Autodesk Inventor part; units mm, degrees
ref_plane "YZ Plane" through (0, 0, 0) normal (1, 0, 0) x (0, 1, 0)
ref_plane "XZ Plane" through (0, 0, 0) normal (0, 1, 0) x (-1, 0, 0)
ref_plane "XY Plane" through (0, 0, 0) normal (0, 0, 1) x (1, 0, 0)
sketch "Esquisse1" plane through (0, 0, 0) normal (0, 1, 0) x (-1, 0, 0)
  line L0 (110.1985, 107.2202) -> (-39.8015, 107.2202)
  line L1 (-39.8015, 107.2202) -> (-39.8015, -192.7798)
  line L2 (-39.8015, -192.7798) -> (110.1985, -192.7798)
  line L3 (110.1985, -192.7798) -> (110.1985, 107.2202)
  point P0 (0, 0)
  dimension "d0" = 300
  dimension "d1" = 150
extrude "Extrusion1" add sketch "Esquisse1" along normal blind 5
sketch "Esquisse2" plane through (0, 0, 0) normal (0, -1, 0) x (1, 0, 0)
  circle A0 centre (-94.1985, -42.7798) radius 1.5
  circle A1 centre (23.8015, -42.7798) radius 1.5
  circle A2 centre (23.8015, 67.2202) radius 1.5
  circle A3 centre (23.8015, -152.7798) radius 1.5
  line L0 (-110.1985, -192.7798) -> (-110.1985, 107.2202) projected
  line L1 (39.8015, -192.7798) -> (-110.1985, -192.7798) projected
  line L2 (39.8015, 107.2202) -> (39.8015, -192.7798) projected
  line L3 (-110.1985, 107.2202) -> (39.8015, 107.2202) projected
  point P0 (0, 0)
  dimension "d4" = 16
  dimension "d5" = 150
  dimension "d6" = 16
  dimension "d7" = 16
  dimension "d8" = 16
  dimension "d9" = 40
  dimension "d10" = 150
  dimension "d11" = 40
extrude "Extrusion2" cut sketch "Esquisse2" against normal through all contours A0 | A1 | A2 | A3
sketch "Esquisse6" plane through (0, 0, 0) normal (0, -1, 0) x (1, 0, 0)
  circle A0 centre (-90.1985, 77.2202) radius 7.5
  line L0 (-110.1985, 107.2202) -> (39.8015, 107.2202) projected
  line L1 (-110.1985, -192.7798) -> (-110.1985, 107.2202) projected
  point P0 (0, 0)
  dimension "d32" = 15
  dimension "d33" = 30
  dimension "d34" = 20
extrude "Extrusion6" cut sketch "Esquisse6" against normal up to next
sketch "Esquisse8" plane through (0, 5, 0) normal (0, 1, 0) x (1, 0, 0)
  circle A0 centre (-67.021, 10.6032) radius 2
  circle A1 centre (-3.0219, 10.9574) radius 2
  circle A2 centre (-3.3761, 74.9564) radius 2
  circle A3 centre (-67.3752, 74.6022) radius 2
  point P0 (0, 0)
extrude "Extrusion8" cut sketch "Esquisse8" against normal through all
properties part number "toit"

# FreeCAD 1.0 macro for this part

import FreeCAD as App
import Part
import Sketcher
from FreeCAD import Vector
Q = App.Units.Quantity


def add_polygon(sketch, points):
    """Adds a closed chain of lines whose ends are joined by coincident constraints."""
    first, n = sketch.GeometryCount, len(points)
    for a, b in zip(points, points[1:] + points[:1]):
        sketch.addGeometry(Part.LineSegment(App.Vector(*a, 0), App.Vector(*b, 0)), False)
    for i in range(n):
        sketch.addConstraint(Sketcher.Constraint("Coincident", first + i, 2, first + (i + 1) % n, 1))

doc = App.newDocument("Part")
body = doc.addObject("PartDesign::Body", "Body")

sketch1 = body.newObject("Sketcher::SketchObject", "Sketch")
sketch1.AttachmentSupport = (doc.getObject("XZ_Plane"), [""])
sketch1.MapMode = "FlatFace"
add_polygon(sketch1, [(-110, -193), (-110, 107), (40, 107), (40, -193)])
sketch1.addConstraint(Sketcher.Constraint("Vertical", 0))
sketch1.addConstraint(Sketcher.Constraint("Horizontal", 1))
sketch1.addConstraint(Sketcher.Constraint("Vertical", 2))
sketch1.addConstraint(Sketcher.Constraint("Horizontal", 3))
sketch1.addConstraint(Sketcher.Constraint("DistanceX", 1, 1, 1, 2, Q("150 mm")))
sketch1.addConstraint(Sketcher.Constraint("DistanceY", 0, 1, 0, 2, Q("300 mm")))
sketch1.addConstraint(Sketcher.Constraint("DistanceX", 0, 2, -1, 1, Q("110.1985 mm")))
sketch1.addConstraint(Sketcher.Constraint("DistanceY", -1, 1, 0, 2, Q("107.2202 mm")))
pad1 = body.newObject("PartDesign::Pad", "Pad")
pad1.Profile = sketch1
pad1.Length = 5
pad1.Reversed = True

sketch2 = body.newObject("Sketcher::SketchObject", "Sketch001")
sketch2.AttachmentSupport = (doc.getObject("XZ_Plane"), [""])
sketch2.MapMode = "FlatFace"
sketch2.addGeometry(Part.Circle(Vector(-94.2, -42.8, 0), Vector(0, 0, 1), 1.5), False)
sketch2.addGeometry(Part.Circle(Vector(23.8, -42.8, 0), Vector(0, 0, 1), 1.5), False)
sketch2.addGeometry(Part.Circle(Vector(23.8, 67.2, 0), Vector(0, 0, 1), 1.5), False)
sketch2.addGeometry(Part.Circle(Vector(23.8, -152.8, 0), Vector(0, 0, 1), 1.5), False)
sketch2.addConstraint(Sketcher.Constraint("Equal", 0, 1))
sketch2.addConstraint(Sketcher.Constraint("Equal", 1, 2))
sketch2.addConstraint(Sketcher.Constraint("Equal", 2, 3))
sketch2.addConstraint(Sketcher.Constraint("Horizontal", 0, 3, 1, 3))
sketch2.addConstraint(Sketcher.Constraint("Vertical", 1, 3, 2, 3))
sketch2.addConstraint(Sketcher.Constraint("Vertical", 2, 3, 3, 3))
sketch2.addConstraint(Sketcher.Constraint("Diameter", 0, Q("3 mm")))
sketch2.addConstraint(Sketcher.Constraint("DistanceX", 0, 3, 1, 3, Q("118 mm")))
sketch2.addConstraint(Sketcher.Constraint("DistanceY", 1, 3, 2, 3, Q("110 mm")))
sketch2.addConstraint(Sketcher.Constraint("DistanceY", 3, 3, 1, 3, Q("110 mm")))
sketch2.addConstraint(Sketcher.Constraint("DistanceX", 0, 3, -1, 1, Q("94.1985 mm")))
sketch2.addConstraint(Sketcher.Constraint("DistanceY", 0, 3, -1, 1, Q("42.7798 mm")))
pocket1 = body.newObject("PartDesign::Pocket", "Pocket")
pocket1.Profile = sketch2
pocket1.Type = "ThroughAll"

sketch3 = body.newObject("Sketcher::SketchObject", "Sketch002")
sketch3.AttachmentSupport = (doc.getObject("XZ_Plane"), [""])
sketch3.MapMode = "FlatFace"
sketch3.addGeometry(Part.Circle(Vector(-90, 77, 0), Vector(0, 0, 1), 8), False)
sketch3.addConstraint(Sketcher.Constraint("Diameter", 0, Q("15 mm")))
sketch3.addConstraint(Sketcher.Constraint("DistanceX", 0, 3, -1, 1, Q("90.1985 mm")))
sketch3.addConstraint(Sketcher.Constraint("DistanceY", -1, 1, 0, 3, Q("77.2202 mm")))
pocket2 = body.newObject("PartDesign::Pocket", "Pocket001")
pocket2.Profile = sketch3
pocket2.Type = "UpToFirst"

sketch4 = body.newObject("Sketcher::SketchObject", "Sketch003")
sketch4.AttachmentSupport = (doc.getObject("XZ_Plane"), [""])
sketch4.MapMode = "FlatFace"
sketch4.AttachmentOffset = App.Placement(Vector(0, 0, -5), App.Rotation())
sketch4.addGeometry(Part.Circle(Vector(-67, -10.6, 0), Vector(0, 0, 1), 2), False)
sketch4.addGeometry(Part.Circle(Vector(-3, -11, 0), Vector(0, 0, 1), 2), False)
sketch4.addGeometry(Part.Circle(Vector(-3.4, -75, 0), Vector(0, 0, 1), 2), False)
sketch4.addGeometry(Part.Circle(Vector(-67.4, -74.6, 0), Vector(0, 0, 1), 2), False)
sketch4.addConstraint(Sketcher.Constraint("Equal", 0, 1))
sketch4.addConstraint(Sketcher.Constraint("Equal", 1, 2))
sketch4.addConstraint(Sketcher.Constraint("Equal", 2, 3))
sketch4.addConstraint(Sketcher.Constraint("Diameter", 0, Q("4 mm")))
sketch4.addConstraint(Sketcher.Constraint("DistanceX", 0, 3, -1, 1, Q("67.021 mm")))
sketch4.addConstraint(Sketcher.Constraint("DistanceX", 1, 3, -1, 1, Q("3.022 mm")))
sketch4.addConstraint(Sketcher.Constraint("DistanceX", 2, 3, -1, 1, Q("3.376 mm")))
sketch4.addConstraint(Sketcher.Constraint("DistanceY", 2, 3, 1, 3, Q("63.999 mm")))
sketch4.addConstraint(Sketcher.Constraint("DistanceY", 3, 3, 0, 3, Q("63.999 mm")))
sketch4.addConstraint(Sketcher.Constraint("DistanceX", 3, 3, 2, 3, Q("63.999 mm")))
sketch4.addConstraint(Sketcher.Constraint("DistanceY", 0, 3, -1, 1, Q("10.6032 mm")))
sketch4.addConstraint(Sketcher.Constraint("DistanceY", 1, 3, -1, 1, Q("10.9574 mm")))
pocket3 = body.newObject("PartDesign::Pocket", "Pocket002")
pocket3.Profile = sketch4
pocket3.Type = "ThroughAll"
pocket3.Reversed = True

doc.recompute()
